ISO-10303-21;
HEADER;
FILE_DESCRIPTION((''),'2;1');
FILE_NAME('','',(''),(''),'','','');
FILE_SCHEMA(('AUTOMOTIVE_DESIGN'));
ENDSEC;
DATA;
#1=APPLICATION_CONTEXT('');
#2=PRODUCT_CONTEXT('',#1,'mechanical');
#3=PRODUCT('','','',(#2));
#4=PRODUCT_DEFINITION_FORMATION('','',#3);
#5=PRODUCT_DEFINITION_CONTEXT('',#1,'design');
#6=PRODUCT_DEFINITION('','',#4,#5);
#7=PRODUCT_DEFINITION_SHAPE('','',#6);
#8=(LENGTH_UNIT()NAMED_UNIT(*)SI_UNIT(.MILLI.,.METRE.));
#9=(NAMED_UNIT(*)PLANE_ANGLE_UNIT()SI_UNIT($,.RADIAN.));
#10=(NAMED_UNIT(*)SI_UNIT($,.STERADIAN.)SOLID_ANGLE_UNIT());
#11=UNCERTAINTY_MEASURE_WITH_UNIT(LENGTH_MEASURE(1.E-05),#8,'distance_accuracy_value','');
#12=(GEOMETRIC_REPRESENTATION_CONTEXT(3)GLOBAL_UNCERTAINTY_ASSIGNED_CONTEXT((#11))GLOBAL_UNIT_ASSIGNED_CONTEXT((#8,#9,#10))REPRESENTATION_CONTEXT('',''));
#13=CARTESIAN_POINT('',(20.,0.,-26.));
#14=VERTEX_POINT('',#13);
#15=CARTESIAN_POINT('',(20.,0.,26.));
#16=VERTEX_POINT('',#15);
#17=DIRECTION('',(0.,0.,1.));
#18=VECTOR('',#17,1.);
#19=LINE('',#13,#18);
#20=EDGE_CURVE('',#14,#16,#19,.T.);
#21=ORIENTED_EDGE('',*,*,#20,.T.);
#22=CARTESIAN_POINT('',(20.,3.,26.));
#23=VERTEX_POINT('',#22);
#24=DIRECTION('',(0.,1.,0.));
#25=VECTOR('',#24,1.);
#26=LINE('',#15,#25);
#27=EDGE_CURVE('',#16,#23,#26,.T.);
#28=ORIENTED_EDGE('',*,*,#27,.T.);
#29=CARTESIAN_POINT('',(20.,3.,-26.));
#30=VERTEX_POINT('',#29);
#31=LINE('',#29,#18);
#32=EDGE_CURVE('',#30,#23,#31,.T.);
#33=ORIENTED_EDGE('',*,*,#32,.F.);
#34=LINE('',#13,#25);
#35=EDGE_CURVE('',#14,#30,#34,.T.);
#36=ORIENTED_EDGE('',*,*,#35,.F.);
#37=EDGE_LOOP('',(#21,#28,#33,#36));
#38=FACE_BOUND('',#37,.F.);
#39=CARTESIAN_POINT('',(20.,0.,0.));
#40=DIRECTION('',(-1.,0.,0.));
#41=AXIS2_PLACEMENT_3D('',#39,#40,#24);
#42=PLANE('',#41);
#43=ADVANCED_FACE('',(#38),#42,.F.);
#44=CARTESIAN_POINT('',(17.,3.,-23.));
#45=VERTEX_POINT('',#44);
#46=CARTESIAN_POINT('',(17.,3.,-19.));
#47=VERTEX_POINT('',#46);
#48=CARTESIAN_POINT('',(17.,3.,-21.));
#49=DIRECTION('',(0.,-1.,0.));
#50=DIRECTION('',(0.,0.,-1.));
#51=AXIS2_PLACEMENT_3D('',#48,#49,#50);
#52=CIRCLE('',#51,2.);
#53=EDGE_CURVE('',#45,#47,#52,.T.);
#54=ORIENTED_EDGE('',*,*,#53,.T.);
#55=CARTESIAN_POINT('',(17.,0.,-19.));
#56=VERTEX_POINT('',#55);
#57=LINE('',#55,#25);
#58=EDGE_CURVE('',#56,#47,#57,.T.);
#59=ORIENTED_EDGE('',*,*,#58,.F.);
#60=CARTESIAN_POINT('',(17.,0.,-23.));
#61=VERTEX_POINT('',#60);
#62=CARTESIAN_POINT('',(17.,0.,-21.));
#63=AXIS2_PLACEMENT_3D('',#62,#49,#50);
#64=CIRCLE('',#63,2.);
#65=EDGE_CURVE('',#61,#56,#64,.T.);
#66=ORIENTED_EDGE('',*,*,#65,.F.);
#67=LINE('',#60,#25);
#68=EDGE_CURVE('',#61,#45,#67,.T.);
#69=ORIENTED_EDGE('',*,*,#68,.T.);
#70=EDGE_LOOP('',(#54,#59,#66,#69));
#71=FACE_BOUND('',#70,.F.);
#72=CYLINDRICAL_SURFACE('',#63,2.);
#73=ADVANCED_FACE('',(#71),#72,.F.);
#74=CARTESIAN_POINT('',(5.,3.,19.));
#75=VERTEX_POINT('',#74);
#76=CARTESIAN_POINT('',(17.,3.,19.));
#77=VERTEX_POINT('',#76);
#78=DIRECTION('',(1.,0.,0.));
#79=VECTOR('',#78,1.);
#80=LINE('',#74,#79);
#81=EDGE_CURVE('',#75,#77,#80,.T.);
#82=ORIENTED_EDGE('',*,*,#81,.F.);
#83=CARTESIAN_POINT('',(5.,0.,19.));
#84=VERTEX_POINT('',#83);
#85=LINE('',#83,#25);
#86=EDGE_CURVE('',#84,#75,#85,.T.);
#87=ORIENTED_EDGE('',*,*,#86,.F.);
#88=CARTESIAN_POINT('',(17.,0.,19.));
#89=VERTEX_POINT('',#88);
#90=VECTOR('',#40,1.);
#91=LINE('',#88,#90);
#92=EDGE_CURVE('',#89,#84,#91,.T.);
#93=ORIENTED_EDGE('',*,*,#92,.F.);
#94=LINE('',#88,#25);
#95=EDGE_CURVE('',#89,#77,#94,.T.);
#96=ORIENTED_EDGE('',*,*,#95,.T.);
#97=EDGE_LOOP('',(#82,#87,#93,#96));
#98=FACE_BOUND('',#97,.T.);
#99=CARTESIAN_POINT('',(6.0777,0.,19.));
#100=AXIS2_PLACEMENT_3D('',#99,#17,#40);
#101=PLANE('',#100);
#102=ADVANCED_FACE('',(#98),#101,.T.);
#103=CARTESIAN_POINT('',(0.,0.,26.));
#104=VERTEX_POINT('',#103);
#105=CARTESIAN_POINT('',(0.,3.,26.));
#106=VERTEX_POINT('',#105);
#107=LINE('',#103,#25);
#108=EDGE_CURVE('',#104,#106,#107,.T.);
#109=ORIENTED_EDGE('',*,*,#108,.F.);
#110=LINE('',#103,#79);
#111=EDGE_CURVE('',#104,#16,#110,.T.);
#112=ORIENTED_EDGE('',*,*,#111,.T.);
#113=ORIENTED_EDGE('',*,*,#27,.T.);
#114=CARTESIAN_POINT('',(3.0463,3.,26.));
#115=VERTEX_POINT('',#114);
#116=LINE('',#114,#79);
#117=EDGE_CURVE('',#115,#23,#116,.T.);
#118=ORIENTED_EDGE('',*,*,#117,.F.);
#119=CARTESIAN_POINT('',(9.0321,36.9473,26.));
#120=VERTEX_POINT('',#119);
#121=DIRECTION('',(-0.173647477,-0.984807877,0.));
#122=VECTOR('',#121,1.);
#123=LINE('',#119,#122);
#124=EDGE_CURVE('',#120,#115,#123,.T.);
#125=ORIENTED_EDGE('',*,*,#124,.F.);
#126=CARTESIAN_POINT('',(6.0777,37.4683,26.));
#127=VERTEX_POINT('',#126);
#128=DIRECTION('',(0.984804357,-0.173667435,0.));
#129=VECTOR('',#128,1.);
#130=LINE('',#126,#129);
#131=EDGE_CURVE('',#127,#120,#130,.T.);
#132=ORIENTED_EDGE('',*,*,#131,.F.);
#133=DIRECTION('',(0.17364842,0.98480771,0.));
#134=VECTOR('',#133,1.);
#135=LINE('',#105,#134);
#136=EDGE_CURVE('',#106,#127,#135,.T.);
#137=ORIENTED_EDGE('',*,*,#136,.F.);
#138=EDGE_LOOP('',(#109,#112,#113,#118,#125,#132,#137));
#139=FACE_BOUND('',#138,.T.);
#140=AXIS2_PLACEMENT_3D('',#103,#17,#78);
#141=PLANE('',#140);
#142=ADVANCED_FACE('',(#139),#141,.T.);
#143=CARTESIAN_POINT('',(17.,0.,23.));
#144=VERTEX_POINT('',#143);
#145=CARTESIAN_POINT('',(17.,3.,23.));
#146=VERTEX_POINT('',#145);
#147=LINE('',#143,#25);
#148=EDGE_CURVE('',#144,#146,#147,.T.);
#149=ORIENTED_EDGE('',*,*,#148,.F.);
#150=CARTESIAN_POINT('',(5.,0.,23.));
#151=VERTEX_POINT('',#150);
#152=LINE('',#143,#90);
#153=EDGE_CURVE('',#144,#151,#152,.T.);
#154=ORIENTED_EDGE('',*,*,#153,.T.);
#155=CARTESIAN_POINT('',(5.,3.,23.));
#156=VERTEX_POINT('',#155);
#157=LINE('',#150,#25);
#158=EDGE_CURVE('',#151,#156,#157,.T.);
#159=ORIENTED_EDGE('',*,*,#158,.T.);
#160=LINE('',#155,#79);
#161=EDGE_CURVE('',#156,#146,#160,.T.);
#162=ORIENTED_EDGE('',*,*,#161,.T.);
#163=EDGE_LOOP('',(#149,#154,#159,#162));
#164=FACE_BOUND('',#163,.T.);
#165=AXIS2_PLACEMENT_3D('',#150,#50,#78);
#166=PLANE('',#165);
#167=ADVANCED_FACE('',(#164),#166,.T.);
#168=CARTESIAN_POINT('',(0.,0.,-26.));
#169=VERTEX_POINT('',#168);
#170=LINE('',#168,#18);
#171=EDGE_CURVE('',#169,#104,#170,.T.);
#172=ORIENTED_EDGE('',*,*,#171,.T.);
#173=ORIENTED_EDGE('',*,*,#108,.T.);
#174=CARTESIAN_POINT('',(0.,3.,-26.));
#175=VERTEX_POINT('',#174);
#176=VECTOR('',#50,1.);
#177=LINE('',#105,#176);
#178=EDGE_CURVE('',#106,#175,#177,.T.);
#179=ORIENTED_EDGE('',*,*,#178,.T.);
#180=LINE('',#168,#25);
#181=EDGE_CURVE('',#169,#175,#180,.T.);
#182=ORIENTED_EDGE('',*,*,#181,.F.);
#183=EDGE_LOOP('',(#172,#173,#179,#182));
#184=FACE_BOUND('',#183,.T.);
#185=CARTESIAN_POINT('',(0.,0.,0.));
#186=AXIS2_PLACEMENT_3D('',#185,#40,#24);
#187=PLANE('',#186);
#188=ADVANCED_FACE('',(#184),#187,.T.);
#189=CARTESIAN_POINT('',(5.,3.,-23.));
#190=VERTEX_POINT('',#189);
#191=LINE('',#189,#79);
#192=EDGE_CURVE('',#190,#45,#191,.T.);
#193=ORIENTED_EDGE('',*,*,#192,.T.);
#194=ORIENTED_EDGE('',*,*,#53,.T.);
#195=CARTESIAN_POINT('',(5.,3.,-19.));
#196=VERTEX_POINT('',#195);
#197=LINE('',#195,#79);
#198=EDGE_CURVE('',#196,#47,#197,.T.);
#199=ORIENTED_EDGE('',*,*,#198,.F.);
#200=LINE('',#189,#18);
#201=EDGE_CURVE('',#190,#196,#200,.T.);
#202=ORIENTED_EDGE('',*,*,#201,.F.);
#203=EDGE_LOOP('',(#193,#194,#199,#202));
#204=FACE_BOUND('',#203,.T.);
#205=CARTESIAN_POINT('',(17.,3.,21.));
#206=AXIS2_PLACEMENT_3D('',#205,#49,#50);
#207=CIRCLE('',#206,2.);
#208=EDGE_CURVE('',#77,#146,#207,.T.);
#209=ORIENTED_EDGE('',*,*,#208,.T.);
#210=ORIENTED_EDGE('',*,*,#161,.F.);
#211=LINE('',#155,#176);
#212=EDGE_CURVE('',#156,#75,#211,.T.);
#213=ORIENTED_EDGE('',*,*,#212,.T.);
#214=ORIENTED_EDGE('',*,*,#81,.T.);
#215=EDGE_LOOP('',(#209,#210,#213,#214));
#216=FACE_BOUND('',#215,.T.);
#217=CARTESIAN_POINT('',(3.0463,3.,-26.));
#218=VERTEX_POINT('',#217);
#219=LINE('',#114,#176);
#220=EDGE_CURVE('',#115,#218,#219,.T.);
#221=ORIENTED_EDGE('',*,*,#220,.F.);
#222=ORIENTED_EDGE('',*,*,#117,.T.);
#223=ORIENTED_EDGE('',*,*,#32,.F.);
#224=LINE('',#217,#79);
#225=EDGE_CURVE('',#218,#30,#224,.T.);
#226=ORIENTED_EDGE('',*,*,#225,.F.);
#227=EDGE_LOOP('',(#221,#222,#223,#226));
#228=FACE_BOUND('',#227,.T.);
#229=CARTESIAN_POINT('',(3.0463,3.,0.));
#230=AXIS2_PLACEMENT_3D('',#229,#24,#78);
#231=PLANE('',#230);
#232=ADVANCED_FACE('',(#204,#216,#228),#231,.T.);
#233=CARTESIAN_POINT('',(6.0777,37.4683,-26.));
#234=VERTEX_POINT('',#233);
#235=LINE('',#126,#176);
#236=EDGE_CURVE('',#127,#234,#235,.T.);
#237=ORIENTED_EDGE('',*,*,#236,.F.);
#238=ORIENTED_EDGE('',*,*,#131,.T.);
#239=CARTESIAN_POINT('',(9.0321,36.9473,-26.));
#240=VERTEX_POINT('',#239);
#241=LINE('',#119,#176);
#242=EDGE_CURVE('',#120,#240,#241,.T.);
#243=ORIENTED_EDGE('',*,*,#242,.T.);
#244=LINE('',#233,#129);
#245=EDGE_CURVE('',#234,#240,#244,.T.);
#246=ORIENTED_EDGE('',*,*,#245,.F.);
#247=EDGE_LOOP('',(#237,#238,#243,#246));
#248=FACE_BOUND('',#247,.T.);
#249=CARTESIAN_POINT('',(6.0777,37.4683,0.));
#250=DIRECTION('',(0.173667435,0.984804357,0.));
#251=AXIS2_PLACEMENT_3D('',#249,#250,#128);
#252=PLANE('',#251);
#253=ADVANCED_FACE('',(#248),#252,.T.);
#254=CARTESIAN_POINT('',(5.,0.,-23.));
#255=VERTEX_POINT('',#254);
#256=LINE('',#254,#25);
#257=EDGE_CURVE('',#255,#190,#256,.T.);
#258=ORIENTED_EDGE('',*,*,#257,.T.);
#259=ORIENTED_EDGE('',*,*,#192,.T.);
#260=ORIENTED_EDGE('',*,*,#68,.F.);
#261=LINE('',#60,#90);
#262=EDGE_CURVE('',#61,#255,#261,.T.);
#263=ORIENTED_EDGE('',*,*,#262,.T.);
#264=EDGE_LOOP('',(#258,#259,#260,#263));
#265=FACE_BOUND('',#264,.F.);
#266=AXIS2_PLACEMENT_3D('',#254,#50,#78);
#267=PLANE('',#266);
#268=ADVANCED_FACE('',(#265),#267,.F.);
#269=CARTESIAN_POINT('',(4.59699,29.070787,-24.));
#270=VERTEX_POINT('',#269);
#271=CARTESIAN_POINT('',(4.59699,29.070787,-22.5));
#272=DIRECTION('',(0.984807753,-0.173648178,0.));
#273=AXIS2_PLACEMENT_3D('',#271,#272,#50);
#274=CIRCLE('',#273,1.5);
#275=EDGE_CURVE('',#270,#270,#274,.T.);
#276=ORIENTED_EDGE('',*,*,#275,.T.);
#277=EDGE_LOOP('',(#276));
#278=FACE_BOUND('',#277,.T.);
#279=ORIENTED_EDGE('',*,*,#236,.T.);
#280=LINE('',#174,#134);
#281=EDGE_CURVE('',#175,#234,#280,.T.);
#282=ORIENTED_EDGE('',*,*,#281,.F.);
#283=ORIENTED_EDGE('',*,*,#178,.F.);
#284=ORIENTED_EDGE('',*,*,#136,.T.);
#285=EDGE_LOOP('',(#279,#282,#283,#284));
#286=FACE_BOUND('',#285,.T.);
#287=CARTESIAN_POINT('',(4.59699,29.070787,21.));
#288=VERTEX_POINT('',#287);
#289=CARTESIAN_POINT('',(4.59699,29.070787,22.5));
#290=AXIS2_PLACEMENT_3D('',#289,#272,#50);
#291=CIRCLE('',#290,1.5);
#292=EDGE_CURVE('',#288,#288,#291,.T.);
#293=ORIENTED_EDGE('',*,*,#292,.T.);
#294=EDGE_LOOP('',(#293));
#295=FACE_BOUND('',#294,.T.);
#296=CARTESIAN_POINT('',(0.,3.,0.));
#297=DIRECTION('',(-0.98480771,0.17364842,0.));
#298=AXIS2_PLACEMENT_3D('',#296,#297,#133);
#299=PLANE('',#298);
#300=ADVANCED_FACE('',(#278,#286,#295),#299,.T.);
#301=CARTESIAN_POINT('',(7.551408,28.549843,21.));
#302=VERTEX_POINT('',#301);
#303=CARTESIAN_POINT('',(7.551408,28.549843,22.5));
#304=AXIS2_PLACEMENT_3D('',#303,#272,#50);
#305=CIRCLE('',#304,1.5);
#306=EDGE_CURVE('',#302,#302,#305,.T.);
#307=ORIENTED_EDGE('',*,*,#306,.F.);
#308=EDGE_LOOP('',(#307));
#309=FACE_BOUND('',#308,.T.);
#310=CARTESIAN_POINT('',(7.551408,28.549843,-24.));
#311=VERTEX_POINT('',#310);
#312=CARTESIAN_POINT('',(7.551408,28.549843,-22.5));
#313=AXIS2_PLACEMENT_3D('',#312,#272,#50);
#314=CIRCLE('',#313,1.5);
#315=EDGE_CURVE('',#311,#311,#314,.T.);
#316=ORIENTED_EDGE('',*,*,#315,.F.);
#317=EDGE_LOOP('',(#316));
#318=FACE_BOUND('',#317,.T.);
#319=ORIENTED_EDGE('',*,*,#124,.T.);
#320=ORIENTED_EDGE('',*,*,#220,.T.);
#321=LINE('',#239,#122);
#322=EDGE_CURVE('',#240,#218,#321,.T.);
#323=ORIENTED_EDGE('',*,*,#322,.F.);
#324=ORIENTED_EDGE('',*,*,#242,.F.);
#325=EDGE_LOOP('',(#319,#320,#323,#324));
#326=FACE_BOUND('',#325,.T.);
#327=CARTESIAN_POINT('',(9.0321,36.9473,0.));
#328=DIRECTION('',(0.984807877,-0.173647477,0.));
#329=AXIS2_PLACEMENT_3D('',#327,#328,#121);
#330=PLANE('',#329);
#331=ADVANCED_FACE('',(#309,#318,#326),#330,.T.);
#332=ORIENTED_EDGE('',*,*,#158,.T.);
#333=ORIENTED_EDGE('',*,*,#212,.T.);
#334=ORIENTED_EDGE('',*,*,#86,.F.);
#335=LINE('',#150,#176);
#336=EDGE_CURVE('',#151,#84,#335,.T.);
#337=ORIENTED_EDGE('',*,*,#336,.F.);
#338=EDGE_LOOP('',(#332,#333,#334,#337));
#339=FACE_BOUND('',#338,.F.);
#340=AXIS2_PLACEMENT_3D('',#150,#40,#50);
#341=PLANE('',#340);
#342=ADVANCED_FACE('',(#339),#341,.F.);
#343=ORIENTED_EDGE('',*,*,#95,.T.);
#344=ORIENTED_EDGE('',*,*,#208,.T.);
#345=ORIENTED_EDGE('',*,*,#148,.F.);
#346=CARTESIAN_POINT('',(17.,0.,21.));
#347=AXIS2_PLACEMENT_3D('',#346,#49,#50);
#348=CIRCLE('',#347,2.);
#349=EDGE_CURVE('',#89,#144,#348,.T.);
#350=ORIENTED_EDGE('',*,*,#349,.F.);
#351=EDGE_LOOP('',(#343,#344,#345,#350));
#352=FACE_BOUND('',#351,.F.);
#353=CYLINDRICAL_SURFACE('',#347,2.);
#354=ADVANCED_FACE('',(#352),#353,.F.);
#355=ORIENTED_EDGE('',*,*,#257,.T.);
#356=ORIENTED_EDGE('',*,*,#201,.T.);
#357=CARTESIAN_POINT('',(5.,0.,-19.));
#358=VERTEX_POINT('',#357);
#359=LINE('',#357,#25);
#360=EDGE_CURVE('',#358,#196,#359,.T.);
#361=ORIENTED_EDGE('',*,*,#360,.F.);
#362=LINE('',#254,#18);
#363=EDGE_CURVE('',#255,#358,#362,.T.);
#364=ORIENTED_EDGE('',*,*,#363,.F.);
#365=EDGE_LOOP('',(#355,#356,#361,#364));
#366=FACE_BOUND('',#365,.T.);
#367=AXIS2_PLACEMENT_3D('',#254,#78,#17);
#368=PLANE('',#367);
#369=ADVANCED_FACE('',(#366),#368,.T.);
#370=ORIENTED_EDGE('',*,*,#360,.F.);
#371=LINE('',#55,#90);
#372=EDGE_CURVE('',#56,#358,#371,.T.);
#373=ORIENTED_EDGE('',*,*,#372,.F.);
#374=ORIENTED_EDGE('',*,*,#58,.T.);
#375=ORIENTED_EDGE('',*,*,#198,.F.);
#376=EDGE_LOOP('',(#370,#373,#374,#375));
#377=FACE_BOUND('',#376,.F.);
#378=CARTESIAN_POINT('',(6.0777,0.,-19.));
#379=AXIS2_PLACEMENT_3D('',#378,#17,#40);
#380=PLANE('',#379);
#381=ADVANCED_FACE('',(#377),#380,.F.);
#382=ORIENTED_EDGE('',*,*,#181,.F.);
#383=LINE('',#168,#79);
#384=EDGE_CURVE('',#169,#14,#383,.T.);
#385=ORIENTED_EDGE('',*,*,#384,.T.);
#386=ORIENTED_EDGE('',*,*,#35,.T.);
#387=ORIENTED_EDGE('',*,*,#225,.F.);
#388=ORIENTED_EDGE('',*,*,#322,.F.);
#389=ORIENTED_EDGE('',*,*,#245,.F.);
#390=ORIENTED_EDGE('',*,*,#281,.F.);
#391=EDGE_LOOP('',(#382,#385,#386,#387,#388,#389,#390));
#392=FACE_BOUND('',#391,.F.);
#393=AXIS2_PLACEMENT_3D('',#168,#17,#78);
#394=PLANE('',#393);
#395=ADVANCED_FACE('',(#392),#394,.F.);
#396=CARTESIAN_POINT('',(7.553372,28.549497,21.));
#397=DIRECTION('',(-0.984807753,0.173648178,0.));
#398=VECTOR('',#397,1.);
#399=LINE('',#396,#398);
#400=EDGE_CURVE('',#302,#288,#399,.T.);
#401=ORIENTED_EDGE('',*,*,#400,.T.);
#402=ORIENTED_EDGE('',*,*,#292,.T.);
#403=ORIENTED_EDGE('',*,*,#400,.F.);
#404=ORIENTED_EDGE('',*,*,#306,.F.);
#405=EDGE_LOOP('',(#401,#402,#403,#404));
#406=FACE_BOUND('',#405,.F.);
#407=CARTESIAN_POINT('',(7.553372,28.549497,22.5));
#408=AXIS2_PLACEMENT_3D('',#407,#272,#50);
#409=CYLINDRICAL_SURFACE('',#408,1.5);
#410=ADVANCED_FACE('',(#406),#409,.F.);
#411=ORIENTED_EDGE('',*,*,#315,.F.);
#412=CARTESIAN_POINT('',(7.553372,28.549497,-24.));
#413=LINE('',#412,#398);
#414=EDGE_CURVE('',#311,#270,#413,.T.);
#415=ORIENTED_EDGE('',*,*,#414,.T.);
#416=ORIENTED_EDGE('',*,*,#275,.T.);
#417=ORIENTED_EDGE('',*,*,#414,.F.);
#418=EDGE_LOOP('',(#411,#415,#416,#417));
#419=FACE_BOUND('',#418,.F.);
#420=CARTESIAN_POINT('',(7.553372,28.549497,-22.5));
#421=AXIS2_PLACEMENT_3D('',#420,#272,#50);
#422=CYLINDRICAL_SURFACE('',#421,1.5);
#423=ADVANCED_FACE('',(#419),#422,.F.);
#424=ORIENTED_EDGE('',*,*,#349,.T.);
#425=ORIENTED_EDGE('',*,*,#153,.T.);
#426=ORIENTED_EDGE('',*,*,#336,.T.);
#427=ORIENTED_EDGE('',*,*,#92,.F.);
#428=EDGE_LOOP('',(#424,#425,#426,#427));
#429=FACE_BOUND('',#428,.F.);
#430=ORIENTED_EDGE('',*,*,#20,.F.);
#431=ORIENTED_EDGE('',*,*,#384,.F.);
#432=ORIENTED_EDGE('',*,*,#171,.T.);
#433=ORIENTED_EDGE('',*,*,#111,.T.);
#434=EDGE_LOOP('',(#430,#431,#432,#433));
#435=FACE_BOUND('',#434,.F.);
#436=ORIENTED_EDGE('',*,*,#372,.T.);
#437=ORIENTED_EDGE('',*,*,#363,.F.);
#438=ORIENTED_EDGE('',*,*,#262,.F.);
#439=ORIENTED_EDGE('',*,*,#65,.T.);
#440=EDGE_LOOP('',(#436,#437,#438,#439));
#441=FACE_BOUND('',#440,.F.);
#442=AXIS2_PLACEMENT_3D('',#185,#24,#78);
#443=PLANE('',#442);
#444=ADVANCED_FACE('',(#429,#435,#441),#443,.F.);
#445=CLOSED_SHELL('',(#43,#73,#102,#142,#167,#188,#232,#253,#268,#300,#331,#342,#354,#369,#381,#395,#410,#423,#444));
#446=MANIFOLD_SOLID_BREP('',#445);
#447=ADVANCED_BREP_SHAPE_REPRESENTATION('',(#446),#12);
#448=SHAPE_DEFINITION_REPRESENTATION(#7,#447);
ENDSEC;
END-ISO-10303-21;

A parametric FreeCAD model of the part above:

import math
import FreeCAD as App
import Part
import Sketcher
from FreeCAD import Vector
Q = App.Units.Quantity


def add_polygon(sketch, points):
    """Adds a closed chain of lines whose ends are joined by coincident constraints."""
    first, n = sketch.GeometryCount, len(points)
    for a, b in zip(points, points[1:] + points[:1]):
        sketch.addGeometry(Part.LineSegment(App.Vector(*a, 0), App.Vector(*b, 0)), False)
    for i in range(n):
        sketch.addConstraint(Sketcher.Constraint("Coincident", first + i, 2, first + (i + 1) % n, 1))

doc = App.newDocument("Part")
params = doc.addObject("Spreadsheet::Sheet", "Params")
for row, (alias, value) in enumerate([
    ("sketch1_width", "20 mm"),
    ("sketch1_height", "3 mm"),
    ("sketch1_length", "3 mm"),
    ("sketch1_length2", "35 mm"),
    ("pad1_length", "26 mm"),
    ("pad1_length2", "26 mm"),
    ("sketch2_diameter", "3 mm"),
    ("pocket1_length", "3 mm"),
    ("sketch3_diameter", "3 mm"),
    ("pocket2_length", "3 mm"),
    ("sketch4_width", "12 mm"),
    ("sketch4_radius", "2 mm"),
    ("pocket3_length", "3 mm"),
], start=1):
    params.set(f"A{row}", alias)
    params.set(f"B{row}", "=" + value)
    params.setAlias(f"B{row}", alias)

body = doc.addObject("PartDesign::Body", "Body")

# Sketch on XY plane
sketch1 = body.newObject("Sketcher::SketchObject", "Sketch")
sketch1.AttachmentSupport = (doc.getObject("XY_Plane"), [""])
sketch1.MapMode = "FlatFace"
add_polygon(sketch1, [(0, 3), (0, 0), (20, 0), (20, 3), (3, 3), (9, 36.9), (6.1, 37.5)])  # lines 0-6
sketch1.addConstraint([
    Sketcher.Constraint("Vertical", 0),
    Sketcher.Constraint("Horizontal", 1),
    Sketcher.Constraint("Vertical", 2),
    Sketcher.Constraint("Horizontal", 3),
    Sketcher.Constraint("Coincident", 0, 2, -1, 1),
    Sketcher.Constraint("Perpendicular", 4, 5),
    Sketcher.Constraint("Perpendicular", 5, 6),
    Sketcher.Constraint("Horizontal", 3, 2, 6, 2),
    Sketcher.Constraint("DistanceX", 1, 1, 1, 2, 20.0),
    Sketcher.Constraint("DistanceY", 0, 2, 0, 1, 3.0),
    Sketcher.Constraint("Angle", 4, Q("80 deg")),
    Sketcher.Constraint("Distance", 5, 3.0),
    Sketcher.Constraint("Distance", 6, 35.0),
])
sketch1.setExpression("Constraints[15]", "Params.sketch1_width")
sketch1.setExpression("Constraints[16]", "Params.sketch1_height")
sketch1.setExpression("Constraints[18]", "Params.sketch1_length")
sketch1.setExpression("Constraints[19]", "Params.sketch1_length2")
pad1 = body.newObject("PartDesign::Pad", "Pad")
pad1.Profile = sketch1
pad1.Type = "TwoLengths"
pad1.setExpression("Length", "Params.pad1_length")
pad1.setExpression("Length2", "Params.pad1_length2")

# Sketch on an angled plane
sketch2 = body.newObject("Sketcher::SketchObject", "Sketch001")
sketch2.Placement = App.Placement(Vector(9.0321, 36.9473, 26), App.Rotation(Vector(0, 0, -1), Vector(0.173648178, 0.984807753, 0), Vector(0.984807753, -0.173648178, 0), "ZXY"))
sketch2.addGeometry(Part.Circle(Vector(3.5, -8.5, 0), Vector(0, 0, 1), 1.5), False)
sketch2.addConstraint([
    Sketcher.Constraint("Diameter", 0, 3.0),
    Sketcher.Constraint("DistanceX", -1, 1, 0, 3, 3.5),
    Sketcher.Constraint("DistanceY", 0, 3, -1, 1, 8.527),
])
sketch2.setExpression("Constraints[0]", "Params.sketch2_diameter")
pocket1 = body.newObject("PartDesign::Pocket", "Pocket")
pocket1.Profile = sketch2
pocket1.setExpression("Length", "Params.pocket1_length")

# Sketch on an angled plane
sketch3 = body.newObject("Sketcher::SketchObject", "Sketch002")
sketch3.Placement = App.Placement(Vector(9.0321, 36.9473, 26), App.Rotation(Vector(0, 0, -1), Vector(0.173648178, 0.984807753, 0), Vector(0.984807753, -0.173648178, 0), "ZXY"))
sketch3.addGeometry(Part.Circle(Vector(48.5, -8.5, 0), Vector(0, 0, 1), 1.5), False)
sketch3.addConstraint([
    Sketcher.Constraint("Diameter", 0, 3.0),
    Sketcher.Constraint("DistanceX", -1, 1, 0, 3, 48.5),
    Sketcher.Constraint("DistanceY", 0, 3, -1, 1, 8.527),
])
sketch3.setExpression("Constraints[0]", "Params.sketch3_diameter")
pocket2 = body.newObject("PartDesign::Pocket", "Pocket001")
pocket2.Profile = sketch3
pocket2.setExpression("Length", "Params.pocket2_length")

# Sketch on XZ plane
sketch4 = body.newObject("Sketcher::SketchObject", "Sketch003")
sketch4.AttachmentSupport = (doc.getObject("XZ_Plane"), [""])
sketch4.MapMode = "FlatFace"
sketch4.addGeometry([
    Part.LineSegment(Vector(5, -23, 0), Vector(17, -23, 0)),  # 0
    Part.ArcOfCircle(Part.Circle(Vector(17, -21, 0), Vector(0, 0, 1), 2), math.radians(-90), math.radians(90)),  # 1
    Part.LineSegment(Vector(17, -19, 0), Vector(5, -19, 0)),  # 2
    Part.LineSegment(Vector(5, -19, 0), Vector(5, -23, 0)),  # 3
    Part.LineSegment(Vector(5, 19, 0), Vector(17, 19, 0)),  # 4
    Part.ArcOfCircle(Part.Circle(Vector(17, 21, 0), Vector(0, 0, 1), 2), math.radians(-90), math.radians(90)),  # 5
    Part.LineSegment(Vector(17, 23, 0), Vector(5, 23, 0)),  # 6
    Part.LineSegment(Vector(5, 23, 0), Vector(5, 19, 0)),  # 7
], False)
sketch4.addConstraint([
    Sketcher.Constraint("Tangent", 0, 2, 1, 1),
    Sketcher.Constraint("Tangent", 1, 2, 2, 1),
    Sketcher.Constraint("Coincident", 2, 2, 3, 1),
    Sketcher.Constraint("Coincident", 3, 2, 0, 1),
    Sketcher.Constraint("Tangent", 4, 2, 5, 1),
    Sketcher.Constraint("Tangent", 5, 2, 6, 1),
    Sketcher.Constraint("Coincident", 6, 2, 7, 1),
    Sketcher.Constraint("Coincident", 7, 2, 4, 1),
    Sketcher.Constraint("Horizontal", 0),
    Sketcher.Constraint("Horizontal", 2),
    Sketcher.Constraint("Vertical", 3),
    Sketcher.Constraint("Horizontal", 4),
    Sketcher.Constraint("Horizontal", 6),
    Sketcher.Constraint("Vertical", 7),
    Sketcher.Constraint("Equal", 1, 5),
    Sketcher.Constraint("Symmetric", 1, 3, 5, 3, -1),
    Sketcher.Constraint("Vertical", 3, 2, 6, 2),
    Sketcher.Constraint("DistanceX", 0, 1, 0, 2, 12.0),
    Sketcher.Constraint("Radius", 1, 2.0),
    Sketcher.Constraint("DistanceX", -1, 1, 1, 3, 17.0),
    Sketcher.Constraint("DistanceY", 1, 3, -1, 1, 21.0),
])
sketch4.setExpression("Constraints[17]", "Params.sketch4_width")
sketch4.setExpression("Constraints[18]", "Params.sketch4_radius")
pocket3 = body.newObject("PartDesign::Pocket", "Pocket002")
pocket3.Profile = sketch4
pocket3.setExpression("Length", "Params.pocket3_length")

doc.recompute()
